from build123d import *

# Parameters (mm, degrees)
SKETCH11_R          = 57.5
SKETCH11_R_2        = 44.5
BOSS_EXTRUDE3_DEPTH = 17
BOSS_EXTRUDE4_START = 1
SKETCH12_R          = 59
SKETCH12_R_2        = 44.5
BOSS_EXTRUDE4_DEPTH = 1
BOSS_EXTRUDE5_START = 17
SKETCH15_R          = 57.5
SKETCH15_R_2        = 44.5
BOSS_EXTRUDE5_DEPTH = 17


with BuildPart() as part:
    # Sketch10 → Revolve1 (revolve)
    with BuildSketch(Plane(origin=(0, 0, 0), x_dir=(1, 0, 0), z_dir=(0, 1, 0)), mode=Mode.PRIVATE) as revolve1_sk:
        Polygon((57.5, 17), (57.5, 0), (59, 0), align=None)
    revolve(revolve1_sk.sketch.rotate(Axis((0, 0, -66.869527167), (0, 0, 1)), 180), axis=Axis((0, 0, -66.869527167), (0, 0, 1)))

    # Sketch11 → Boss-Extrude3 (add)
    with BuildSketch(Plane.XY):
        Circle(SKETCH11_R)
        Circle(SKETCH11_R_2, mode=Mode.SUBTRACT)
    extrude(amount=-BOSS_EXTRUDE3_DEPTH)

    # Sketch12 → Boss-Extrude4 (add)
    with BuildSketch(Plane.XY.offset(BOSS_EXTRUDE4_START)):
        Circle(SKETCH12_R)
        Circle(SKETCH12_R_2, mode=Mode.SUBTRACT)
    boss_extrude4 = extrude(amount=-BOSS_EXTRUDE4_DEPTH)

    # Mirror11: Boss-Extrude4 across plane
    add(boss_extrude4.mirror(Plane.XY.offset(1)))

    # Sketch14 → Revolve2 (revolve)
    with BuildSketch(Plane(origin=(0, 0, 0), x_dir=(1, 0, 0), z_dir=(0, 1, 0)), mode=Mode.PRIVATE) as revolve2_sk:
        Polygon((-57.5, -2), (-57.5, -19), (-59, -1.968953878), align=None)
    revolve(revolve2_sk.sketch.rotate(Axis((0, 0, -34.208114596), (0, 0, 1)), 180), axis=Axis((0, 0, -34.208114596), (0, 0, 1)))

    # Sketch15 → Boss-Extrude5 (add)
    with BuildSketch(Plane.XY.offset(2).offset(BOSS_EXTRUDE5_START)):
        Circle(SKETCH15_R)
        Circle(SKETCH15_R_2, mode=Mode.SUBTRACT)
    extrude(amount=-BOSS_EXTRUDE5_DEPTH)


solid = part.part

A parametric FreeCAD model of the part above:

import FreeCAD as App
import Part
import Sketcher
Q = App.Units.Quantity


def add_polygon(sketch, points):
    """Adds a closed chain of lines whose ends are joined by coincident constraints."""
    first, n = sketch.GeometryCount, len(points)
    for a, b in zip(points, points[1:] + points[:1]):
        sketch.addGeometry(Part.LineSegment(App.Vector(*a, 0), App.Vector(*b, 0)), False)
    for i in range(n):
        sketch.addConstraint(Sketcher.Constraint("Coincident", first + i, 2, first + (i + 1) % n, 1))

doc = App.newDocument("Part")
body = doc.addObject("PartDesign::Body", "Body")

# Sketch on XZ plane
sketch1 = body.newObject("Sketcher::SketchObject", "Sketch")
sketch1.AttachmentSupport = (doc.getObject("XZ_Plane"), [""])
sketch1.MapMode = "FlatFace"
add_polygon(sketch1, [(57.5, -17), (57.5, 0), (59, 0)])  # lines 0-2
sketch1.addConstraint(Sketcher.Constraint("Vertical", 0))
sketch1.addConstraint(Sketcher.Constraint("Horizontal", 1))
sketch1.addConstraint(Sketcher.Constraint("PointOnObject", 0, 2, -1))
sketch1.addConstraint(Sketcher.Constraint("DistanceY", 0, 1, 0, 2, Q("17 mm")))
sketch1.addConstraint(Sketcher.Constraint("DistanceX", 1, 1, 1, 2, Q("1.5 mm")))
sketch1.addConstraint(Sketcher.Constraint("DistanceX", -1, 1, 1, 2, Q("59 mm")))
revolution = body.newObject("PartDesign::Revolution", "Revolution")
revolution.Profile = sketch1
revolution.ReferenceAxis = (sketch1, ["V_Axis"])
revolution.Angle = 360

# Sketch on XY plane
sketch2 = body.newObject("Sketcher::SketchObject", "Sketch001")
sketch2.AttachmentSupport = (doc.getObject("XY_Plane"), [""])
sketch2.MapMode = "FlatFace"
sketch2.addGeometry(Part.Circle(App.Vector(0, 0, 0), App.Vector(0, 0, 1), 58), False)
sketch2.addGeometry(Part.Circle(App.Vector(0, 0, 0), App.Vector(0, 0, 1), 44), False)
sketch2.addConstraint(Sketcher.Constraint("Coincident", 0, 3, -1, 1))
sketch2.addConstraint(Sketcher.Constraint("Coincident", 1, 3, -1, 1))
sketch2.addConstraint(Sketcher.Constraint("Diameter", 0, Q("115 mm")))
sketch2.addConstraint(Sketcher.Constraint("Diameter", 1, Q("89 mm")))
pad1 = body.newObject("PartDesign::Pad", "Pad")
pad1.Profile = sketch2
pad1.Length = 17
pad1.Reversed = True

# Sketch on XY plane
sketch3 = body.newObject("Sketcher::SketchObject", "Sketch002")
sketch3.AttachmentSupport = (doc.getObject("XY_Plane"), [""])
sketch3.MapMode = "FlatFace"
sketch3.AttachmentOffset = App.Placement(App.Vector(0, 0, 1), App.Rotation())
sketch3.addGeometry(Part.Circle(App.Vector(0, 0, 0), App.Vector(0, 0, 1), 59), False)
sketch3.addGeometry(Part.Circle(App.Vector(0, 0, 0), App.Vector(0, 0, 1), 44), False)
sketch3.addConstraint(Sketcher.Constraint("Coincident", 0, 3, -1, 1))
sketch3.addConstraint(Sketcher.Constraint("Coincident", 1, 3, -1, 1))
sketch3.addConstraint(Sketcher.Constraint("Diameter", 0, Q("118 mm")))
sketch3.addConstraint(Sketcher.Constraint("Diameter", 1, Q("89 mm")))
pad2 = body.newObject("PartDesign::Pad", "Pad001")
pad2.Profile = sketch3
pad2.Length = 1
pad2.Reversed = True
doc.recompute()

datumplane = body.newObject("PartDesign::Plane", "DatumPlane")
datumplane.AttachmentSupport = (doc.getObject("XY_Plane"), [""])
datumplane.MapMode = "FlatFace"
datumplane.AttachmentOffset = App.Placement(App.Vector(0, 0, 1), App.Rotation())
mirrored = body.newObject("PartDesign::Mirrored", "Mirrored")
mirrored.Originals = [pad2]
mirrored.MirrorPlane = (datumplane, [""])
body.Tip = mirrored

# Sketch on XZ plane
sketch4 = body.newObject("Sketcher::SketchObject", "Sketch003")
sketch4.AttachmentSupport = (doc.getObject("XZ_Plane"), [""])
sketch4.MapMode = "FlatFace"
add_polygon(sketch4, [(-57.5, 19), (-57.5, 2), (-59, 1.968954)])  # lines 0-2
sketch4.addConstraint(Sketcher.Constraint("Vertical", 0))
sketch4.addConstraint(Sketcher.Constraint("DistanceY", 0, 2, 0, 1, Q("17 mm")))
sketch4.addConstraint(Sketcher.Constraint("DistanceY", -1, 1, 0, 2, Q("2 mm")))
sketch4.addConstraint(Sketcher.Constraint("DistanceX", 1, 2, -1, 1, Q("59 mm")))
sketch4.addConstraint(Sketcher.Constraint("DistanceX", 0, 2, -1, 1, Q("57.5 mm")))
sketch4.addConstraint(Sketcher.Constraint("Distance", 1, Q("1.500321 mm")))
revolution2 = body.newObject("PartDesign::Revolution", "Revolution001")
revolution2.Profile = sketch4
revolution2.ReferenceAxis = (sketch4, ["V_Axis"])
revolution2.Angle = 360

# Sketch on XY plane
sketch5 = body.newObject("Sketcher::SketchObject", "Sketch004")
sketch5.AttachmentSupport = (doc.getObject("XY_Plane"), [""])
sketch5.MapMode = "FlatFace"
sketch5.AttachmentOffset = App.Placement(App.Vector(0, 0, 19), App.Rotation())
sketch5.addGeometry(Part.Circle(App.Vector(0, 0, 0), App.Vector(0, 0, 1), 58), False)
sketch5.addGeometry(Part.Circle(App.Vector(0, 0, 0), App.Vector(0, 0, 1), 44), False)
sketch5.addConstraint(Sketcher.Constraint("Coincident", 0, 3, -1, 1))
sketch5.addConstraint(Sketcher.Constraint("Coincident", 1, 3, -1, 1))
sketch5.addConstraint(Sketcher.Constraint("Diameter", 0, Q("115 mm")))
sketch5.addConstraint(Sketcher.Constraint("Diameter", 1, Q("89 mm")))
pad3 = body.newObject("PartDesign::Pad", "Pad002")
pad3.Profile = sketch5
pad3.Length = 17
pad3.Reversed = True

doc.recompute()
